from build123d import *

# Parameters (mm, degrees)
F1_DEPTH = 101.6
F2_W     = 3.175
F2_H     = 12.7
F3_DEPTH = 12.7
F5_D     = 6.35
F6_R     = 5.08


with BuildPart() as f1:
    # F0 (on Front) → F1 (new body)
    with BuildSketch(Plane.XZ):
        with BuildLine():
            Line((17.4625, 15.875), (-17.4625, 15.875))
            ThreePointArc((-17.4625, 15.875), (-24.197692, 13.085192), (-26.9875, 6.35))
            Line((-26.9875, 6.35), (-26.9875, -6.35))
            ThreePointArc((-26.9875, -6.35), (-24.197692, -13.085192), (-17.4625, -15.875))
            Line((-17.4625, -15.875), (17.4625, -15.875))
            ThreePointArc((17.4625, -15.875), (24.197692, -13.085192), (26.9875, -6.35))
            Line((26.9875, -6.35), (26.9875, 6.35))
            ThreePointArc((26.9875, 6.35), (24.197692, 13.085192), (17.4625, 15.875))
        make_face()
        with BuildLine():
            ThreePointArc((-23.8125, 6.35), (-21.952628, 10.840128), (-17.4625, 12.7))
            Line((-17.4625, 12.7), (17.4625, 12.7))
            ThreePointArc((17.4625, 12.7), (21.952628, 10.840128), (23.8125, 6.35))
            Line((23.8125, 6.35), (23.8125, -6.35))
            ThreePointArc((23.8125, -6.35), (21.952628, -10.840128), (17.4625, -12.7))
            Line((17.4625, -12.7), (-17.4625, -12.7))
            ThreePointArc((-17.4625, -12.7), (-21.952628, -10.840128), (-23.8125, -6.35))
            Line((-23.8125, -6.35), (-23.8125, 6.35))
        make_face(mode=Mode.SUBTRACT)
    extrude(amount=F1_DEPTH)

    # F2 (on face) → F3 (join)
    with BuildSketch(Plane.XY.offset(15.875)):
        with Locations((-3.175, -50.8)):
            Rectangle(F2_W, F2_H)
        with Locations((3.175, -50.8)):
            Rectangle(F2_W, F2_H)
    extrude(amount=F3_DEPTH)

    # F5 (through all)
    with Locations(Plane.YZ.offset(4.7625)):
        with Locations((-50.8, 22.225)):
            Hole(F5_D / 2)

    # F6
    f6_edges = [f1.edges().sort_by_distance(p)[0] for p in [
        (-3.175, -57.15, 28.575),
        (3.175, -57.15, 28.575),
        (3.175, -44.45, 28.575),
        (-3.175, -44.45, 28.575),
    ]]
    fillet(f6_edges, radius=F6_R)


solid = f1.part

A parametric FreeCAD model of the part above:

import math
import FreeCAD as App
import Part
import Sketcher
from FreeCAD import Vector
Q = App.Units.Quantity


def edges_at(feature, points):
    """Names of the edges that pass closest to the given points."""
    edges = feature.Shape.Edges
    near = lambda p: min(range(len(edges)), key=lambda i: edges[i].distToShape(Part.Vertex(*p))[0])
    return sorted({f"Edge{near(p) + 1}" for p in points})


def add_polygon(sketch, points):
    """Adds a closed chain of lines whose ends are joined by coincident constraints."""
    first, n = sketch.GeometryCount, len(points)
    for a, b in zip(points, points[1:] + points[:1]):
        sketch.addGeometry(Part.LineSegment(App.Vector(*a, 0), App.Vector(*b, 0)), False)
    for i in range(n):
        sketch.addConstraint(Sketcher.Constraint("Coincident", first + i, 2, first + (i + 1) % n, 1))

doc = App.newDocument("Part")
params = doc.addObject("Spreadsheet::Sheet", "Params")
for row, (alias, value) in enumerate([
    ("sketch1_radius", "0.25 in"),
    ("sketch1_height", "0.5 in"),
    ("sketch1_radius2", "0.375 in"),
    ("sketch1_width", "1.375 in"),
    ("pad1_length", "4 in"),
    ("sketch2_height", "0.5 in"),
    ("sketch2_width", "0.125 in"),
    ("pad2_length", "0.5 in"),
    ("sketch3_diameter", "0.25 in"),
    ("hole_diameter", "0.25 in"),
    ("fillet_radius", "0.2 in"),
], start=1):
    params.set(f"A{row}", alias)
    params.set(f"B{row}", "=" + value)
    params.setAlias(f"B{row}", alias)

body = doc.addObject("PartDesign::Body", "Body")

sketch1 = body.newObject("Sketcher::SketchObject", "Sketch")
sketch1.AttachmentSupport = (doc.getObject("XZ_Plane"), [""])
sketch1.MapMode = "FlatFace"
sketch1.addGeometry(Part.LineSegment(Vector(17.4625, 15.875, 0), Vector(-17.4625, 15.875, 0)), False)
sketch1.addGeometry(Part.ArcOfCircle(Part.Circle(Vector(-17.4625, 6.35, 0), Vector(0, 0, 1), 9.525), math.radians(90.000002), math.radians(179.999998)), False)
sketch1.addGeometry(Part.LineSegment(Vector(-26.9875, 6.35, 0), Vector(-26.9875, -6.35, 0)), False)
sketch1.addGeometry(Part.ArcOfCircle(Part.Circle(Vector(-17.4625, -6.35, 0), Vector(0, 0, 1), 9.525), math.radians(-179.999998), math.radians(-90.000002)), False)
sketch1.addGeometry(Part.LineSegment(Vector(-17.4625, -15.875, 0), Vector(17.4625, -15.875, 0)), False)
sketch1.addGeometry(Part.ArcOfCircle(Part.Circle(Vector(17.4625, -6.35, 0), Vector(0, 0, 1), 9.525), math.radians(-89.999998), math.radians(-0.000002)), False)
sketch1.addGeometry(Part.LineSegment(Vector(26.9875, -6.35, 0), Vector(26.9875, 6.35, 0)), False)
sketch1.addGeometry(Part.ArcOfCircle(Part.Circle(Vector(17.4625, 6.35, 0), Vector(0, 0, 1), 9.525), math.radians(0.000002), math.radians(89.999998)), False)
sketch1.addGeometry(Part.LineSegment(Vector(-23.8125, -6.35, 0), Vector(-23.8125, 6.35, 0)), False)
sketch1.addGeometry(Part.ArcOfCircle(Part.Circle(Vector(-17.4625, 6.35, 0), Vector(0, 0, 1), 6.35), math.radians(90.000002), math.radians(179.999998)), False)
sketch1.addGeometry(Part.LineSegment(Vector(-17.4625, 12.7, 0), Vector(17.4625, 12.7, 0)), False)
sketch1.addGeometry(Part.ArcOfCircle(Part.Circle(Vector(17.4625, 6.35, 0), Vector(0, 0, 1), 6.35), math.radians(0.000002), math.radians(89.999998)), False)
sketch1.addGeometry(Part.LineSegment(Vector(23.8125, 6.35, 0), Vector(23.8125, -6.35, 0)), False)
sketch1.addGeometry(Part.ArcOfCircle(Part.Circle(Vector(17.4625, -6.35, 0), Vector(0, 0, 1), 6.35), math.radians(-89.999998), math.radians(-0.000002)), False)
sketch1.addGeometry(Part.LineSegment(Vector(17.4625, -12.7, 0), Vector(-17.4625, -12.7, 0)), False)
sketch1.addGeometry(Part.ArcOfCircle(Part.Circle(Vector(-17.4625, -6.35, 0), Vector(0, 0, 1), 6.35), math.radians(-179.999998), math.radians(-90.000002)), False)
sketch1.addConstraint(Sketcher.Constraint("Tangent", 0, 2, 1, 1))
sketch1.addConstraint(Sketcher.Constraint("Tangent", 1, 2, 2, 1))
sketch1.addConstraint(Sketcher.Constraint("Tangent", 2, 2, 3, 1))
sketch1.addConstraint(Sketcher.Constraint("Tangent", 3, 2, 4, 1))
sketch1.addConstraint(Sketcher.Constraint("Tangent", 4, 2, 5, 1))
sketch1.addConstraint(Sketcher.Constraint("Tangent", 5, 2, 6, 1))
sketch1.addConstraint(Sketcher.Constraint("Tangent", 6, 2, 7, 1))
sketch1.addConstraint(Sketcher.Constraint("Tangent", 7, 2, 0, 1))
sketch1.addConstraint(Sketcher.Constraint("Tangent", 8, 2, 9, 2))
sketch1.addConstraint(Sketcher.Constraint("Tangent", 9, 1, 10, 1))
sketch1.addConstraint(Sketcher.Constraint("Tangent", 10, 2, 11, 2))
sketch1.addConstraint(Sketcher.Constraint("Tangent", 11, 1, 12, 1))
sketch1.addConstraint(Sketcher.Constraint("Tangent", 12, 2, 13, 2))
sketch1.addConstraint(Sketcher.Constraint("Tangent", 13, 1, 14, 1))
sketch1.addConstraint(Sketcher.Constraint("Tangent", 14, 2, 15, 2))
sketch1.addConstraint(Sketcher.Constraint("Tangent", 15, 1, 8, 1))
sketch1.addConstraint(Sketcher.Constraint("Horizontal", 0))
sketch1.addConstraint(Sketcher.Constraint("Vertical", 2))
sketch1.addConstraint(Sketcher.Constraint("Horizontal", 4))
sketch1.addConstraint(Sketcher.Constraint("Vertical", 6))
sketch1.addConstraint(Sketcher.Constraint("Vertical", 8))
sketch1.addConstraint(Sketcher.Constraint("Horizontal", 10))
sketch1.addConstraint(Sketcher.Constraint("Vertical", 12))
sketch1.addConstraint(Sketcher.Constraint("Horizontal", 14))
sketch1.addConstraint(Sketcher.Constraint("Coincident", 9, 3, 1, 3))
sketch1.addConstraint(Sketcher.Constraint("Coincident", 11, 3, 7, 3))
sketch1.addConstraint(Sketcher.Constraint("Coincident", 13, 3, 5, 3))
sketch1.addConstraint(Sketcher.Constraint("Equal", 1, 3))
sketch1.addConstraint(Sketcher.Constraint("Equal", 3, 5))
sketch1.addConstraint(Sketcher.Constraint("Equal", 5, 7))
sketch1.addConstraint(Sketcher.Constraint("Equal", 13, 15))
sketch1.addConstraint(Sketcher.Constraint("Symmetric", 1, 3, 5, 3, -1, 1))
sketch1.addConstraint(Sketcher.Constraint("Radius", 9, Q("0.25 in")))
sketch1.addConstraint(Sketcher.Constraint("DistanceY", 2, 2, 2, 1, Q("0.5 in")))
sketch1.addConstraint(Sketcher.Constraint("Radius", 1, Q("0.375 in")))
sketch1.addConstraint(Sketcher.Constraint("DistanceX", 0, 2, 0, 1, Q("1.375 in")))
sketch1.setExpression("Constraints[32]", "Params.sketch1_radius")
sketch1.setExpression("Constraints[33]", "Params.sketch1_height")
sketch1.setExpression("Constraints[34]", "Params.sketch1_radius2")
sketch1.setExpression("Constraints[35]", "Params.sketch1_width")
pad1 = body.newObject("PartDesign::Pad", "Pad")
pad1.Profile = sketch1
pad1.setExpression("Length", "Params.pad1_length")

sketch2 = body.newObject("Sketcher::SketchObject", "Sketch001")
sketch2.AttachmentSupport = (doc.getObject("XY_Plane"), [""])
sketch2.MapMode = "FlatFace"
sketch2.AttachmentOffset = App.Placement(Vector(0, 0, 0.625 * 25.4), App.Rotation())
add_polygon(sketch2, [(-4.7625, -44.45), (-4.7625, -57.15), (-1.5875, -57.15), (-1.5875, -44.45)])
add_polygon(sketch2, [(1.5875, -44.45), (1.5875, -57.15), (4.7625, -57.15), (4.7625, -44.45)])
sketch2.addConstraint(Sketcher.Constraint("Vertical", 0))
sketch2.addConstraint(Sketcher.Constraint("Horizontal", 1))
sketch2.addConstraint(Sketcher.Constraint("Vertical", 2))
sketch2.addConstraint(Sketcher.Constraint("Horizontal", 3))
sketch2.addConstraint(Sketcher.Constraint("Vertical", 4))
sketch2.addConstraint(Sketcher.Constraint("Horizontal", 5))
sketch2.addConstraint(Sketcher.Constraint("Vertical", 6))
sketch2.addConstraint(Sketcher.Constraint("Horizontal", 7))
sketch2.addConstraint(Sketcher.Constraint("Symmetric", 1, 2, 4, 2, -2))
sketch2.addConstraint(Sketcher.Constraint("Symmetric", 3, 2, 6, 2, -2))
sketch2.addConstraint(Sketcher.Constraint("DistanceY", 0, 2, 0, 1, Q("0.5 in")))
sketch2.addConstraint(Sketcher.Constraint("DistanceX", 1, 1, 1, 2, Q("0.125 in")))
sketch2.addConstraint(Sketcher.Constraint("DistanceY", 0, 2, -1, 1, Q("2.25 in")))
sketch2.addConstraint(Sketcher.Constraint("DistanceX", 0, 2, 4, 2, Q("0.25 in")))
sketch2.setExpression("Constraints[18]", "Params.sketch2_height")
sketch2.setExpression("Constraints[19]", "Params.sketch2_width")
pad2 = body.newObject("PartDesign::Pad", "Pad001")
pad2.Profile = sketch2
pad2.setExpression("Length", "Params.pad2_length")

sketch3 = body.newObject("Sketcher::SketchObject", "Sketch002")
sketch3.AttachmentSupport = (doc.getObject("YZ_Plane"), [""])
sketch3.MapMode = "FlatFace"
sketch3.AttachmentOffset = App.Placement(Vector(0, 0, 0.1875 * 25.4), App.Rotation())
sketch3.addGeometry(Part.Circle(Vector(-50.8, 22.225, 0), Vector(0, 0, 1), 3.175), False)
sketch3.addConstraint(Sketcher.Constraint("Diameter", 0, Q("0.25 in")))
sketch3.addConstraint(Sketcher.Constraint("DistanceX", 0, 3, -1, 1, Q("2 in")))
sketch3.addConstraint(Sketcher.Constraint("DistanceY", -1, 1, 0, 3, Q("0.875 in")))
sketch3.setExpression("Constraints[0]", "Params.sketch3_diameter")
doc.recompute()
hole = body.newObject("PartDesign::Hole", "Hole")
hole.Profile = sketch3
hole.ThreadType = "None"
hole.setExpression("Diameter", "Params.hole_diameter")
hole.DepthType = "ThroughAll"
doc.recompute()

fillet = body.newObject("PartDesign::Fillet", "Fillet")
fillet.Base = (hole, edges_at(hole, [
    (-3.175, -57.15, 28.575),
    (3.175, -57.15, 28.575),
    (3.175, -44.45, 28.575),
    (-3.175, -44.45, 28.575),
]))
fillet.setExpression("Radius", "Params.fillet_radius")

doc.recompute()
